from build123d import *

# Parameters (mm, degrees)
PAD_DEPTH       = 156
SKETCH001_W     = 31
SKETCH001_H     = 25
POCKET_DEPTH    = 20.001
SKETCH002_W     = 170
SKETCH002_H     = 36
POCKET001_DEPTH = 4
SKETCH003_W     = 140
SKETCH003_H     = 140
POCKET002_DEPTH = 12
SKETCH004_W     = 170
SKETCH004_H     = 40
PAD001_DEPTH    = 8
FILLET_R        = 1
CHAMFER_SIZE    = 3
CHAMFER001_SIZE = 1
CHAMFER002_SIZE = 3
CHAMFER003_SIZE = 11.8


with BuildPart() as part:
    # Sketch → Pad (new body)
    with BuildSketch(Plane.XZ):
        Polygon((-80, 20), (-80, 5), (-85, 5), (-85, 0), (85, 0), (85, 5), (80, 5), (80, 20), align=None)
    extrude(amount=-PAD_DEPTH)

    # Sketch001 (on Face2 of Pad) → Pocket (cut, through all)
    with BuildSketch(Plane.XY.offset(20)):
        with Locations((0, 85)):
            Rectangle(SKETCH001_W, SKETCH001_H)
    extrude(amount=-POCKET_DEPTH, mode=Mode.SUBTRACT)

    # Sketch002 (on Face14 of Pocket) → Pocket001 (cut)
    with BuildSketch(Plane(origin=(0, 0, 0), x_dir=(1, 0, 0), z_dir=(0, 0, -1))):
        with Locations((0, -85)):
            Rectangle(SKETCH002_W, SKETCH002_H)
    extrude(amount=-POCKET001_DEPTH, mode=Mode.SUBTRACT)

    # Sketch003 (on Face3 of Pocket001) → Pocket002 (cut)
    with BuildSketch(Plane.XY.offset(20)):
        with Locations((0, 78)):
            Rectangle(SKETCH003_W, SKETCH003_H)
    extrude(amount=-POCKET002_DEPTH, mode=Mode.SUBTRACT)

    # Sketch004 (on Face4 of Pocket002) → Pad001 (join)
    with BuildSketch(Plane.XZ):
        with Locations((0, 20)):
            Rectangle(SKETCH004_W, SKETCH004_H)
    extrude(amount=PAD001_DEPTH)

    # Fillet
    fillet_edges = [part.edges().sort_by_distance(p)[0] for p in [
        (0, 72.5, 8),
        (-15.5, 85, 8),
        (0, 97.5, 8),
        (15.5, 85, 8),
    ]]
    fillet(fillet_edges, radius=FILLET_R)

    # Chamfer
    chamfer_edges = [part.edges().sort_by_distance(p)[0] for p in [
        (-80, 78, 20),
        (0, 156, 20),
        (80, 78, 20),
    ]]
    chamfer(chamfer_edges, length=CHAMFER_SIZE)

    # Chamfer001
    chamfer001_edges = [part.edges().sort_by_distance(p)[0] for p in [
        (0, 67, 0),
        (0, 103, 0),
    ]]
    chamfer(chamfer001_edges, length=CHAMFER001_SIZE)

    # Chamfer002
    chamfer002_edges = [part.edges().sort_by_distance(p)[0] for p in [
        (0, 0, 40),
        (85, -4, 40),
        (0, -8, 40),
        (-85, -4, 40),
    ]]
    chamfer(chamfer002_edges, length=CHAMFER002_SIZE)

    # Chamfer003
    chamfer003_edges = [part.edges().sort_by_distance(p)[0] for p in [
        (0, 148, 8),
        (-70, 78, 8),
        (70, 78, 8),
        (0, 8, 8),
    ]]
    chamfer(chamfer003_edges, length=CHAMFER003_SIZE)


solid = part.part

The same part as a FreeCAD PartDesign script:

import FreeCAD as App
import Part
import Sketcher
from FreeCAD import Vector


def edges_at(feature, points):
    """Names of the edges that pass closest to the given points."""
    edges = feature.Shape.Edges
    near = lambda p: min(range(len(edges)), key=lambda i: edges[i].distToShape(Part.Vertex(*p))[0])
    return sorted({f"Edge{near(p) + 1}" for p in points})

doc = App.newDocument("Part")
body = doc.addObject("PartDesign::Body", "Body")

# Sketch on XZ plane
sketch1 = body.newObject("Sketcher::SketchObject", "Sketch")
sketch1.AttachmentSupport = (doc.getObject("XZ_Plane"), [""])
sketch1.MapMode = "FlatFace"
sketch1.addGeometry([
    Part.LineSegment(Vector(-80, 20, 0), Vector(-80, 5, 0)),  # 0
    Part.LineSegment(Vector(-80, 5, 0), Vector(-85, 5, 0)),  # 1
    Part.LineSegment(Vector(-85, 5, 0), Vector(-85, 0, 0)),  # 2
    Part.LineSegment(Vector(-85, 0, 0), Vector(85, 0, 0)),  # 3
    Part.LineSegment(Vector(85, 0, 0), Vector(85, 5, 0)),  # 4
    Part.LineSegment(Vector(85, 5, 0), Vector(80, 5, 0)),  # 5
    Part.LineSegment(Vector(80, 5, 0), Vector(80, 20, 0)),  # 6
    Part.LineSegment(Vector(80, 20, 0), Vector(-80, 20, 0)),  # 7
], False)
sketch1.addConstraint([
    Sketcher.Constraint("Coincident", 0, 2, 1, 1),
    Sketcher.Constraint("Coincident", 1, 2, 2, 1),
    Sketcher.Constraint("Coincident", 2, 2, 3, 1),
    Sketcher.Constraint("Coincident", 3, 2, 4, 1),
    Sketcher.Constraint("Coincident", 4, 2, 5, 1),
    Sketcher.Constraint("Coincident", 5, 2, 6, 1),
    Sketcher.Constraint("Coincident", 6, 2, 7, 1),
    Sketcher.Constraint("Coincident", 7, 2, 0, 1),
    Sketcher.Constraint("Vertical", 0),
    Sketcher.Constraint("Horizontal", 1),
    Sketcher.Constraint("Vertical", 2),
    Sketcher.Constraint("Horizontal", 3),
    Sketcher.Constraint("Vertical", 4),
    Sketcher.Constraint("Horizontal", 5),
    Sketcher.Constraint("Vertical", 6),
    Sketcher.Constraint("Horizontal", 7),
    Sketcher.Constraint("Symmetric", 2, 2, 3, 2, -1, 1),
    Sketcher.Constraint("Symmetric", 0, 2, 5, 2, -2),
    Sketcher.Constraint("Equal", 5, 2),
    Sketcher.Constraint("DistanceX", 1, 2, 1, 1, 5.0),
    Sketcher.Constraint("DistanceX", 3, 1, 3, 2, 170.0),
    Sketcher.Constraint("DistanceY", 0, 2, 0, 1, 15.0),
])
pad1 = body.newObject("PartDesign::Pad", "Pad")
pad1.Profile = sketch1
pad1.Length = 156
pad1.Reversed = True

# Sketch on XY plane
sketch2 = body.newObject("Sketcher::SketchObject", "Sketch001")
sketch2.AttachmentSupport = (doc.getObject("XY_Plane"), [""])
sketch2.MapMode = "FlatFace"
sketch2.AttachmentOffset = App.Placement(Vector(0, 0, 20), App.Rotation())
sketch2.addGeometry([
    Part.LineSegment(Vector(-15.5, 97.5, 0), Vector(-15.5, 72.5, 0)),
    Part.LineSegment(Vector(-15.5, 72.5, 0), Vector(15.5, 72.5, 0)),
    Part.LineSegment(Vector(15.5, 72.5, 0), Vector(15.5, 97.5, 0)),
    Part.LineSegment(Vector(15.5, 97.5, 0), Vector(-15.5, 97.5, 0)),
], False)
sketch2.addConstraint([
    Sketcher.Constraint("Coincident", 0, 2, 1, 1),
    Sketcher.Constraint("Coincident", 1, 2, 2, 1),
    Sketcher.Constraint("Coincident", 2, 2, 3, 1),
    Sketcher.Constraint("Coincident", 3, 2, 0, 1),
    Sketcher.Constraint("Vertical", 0),
    Sketcher.Constraint("Horizontal", 1),
    Sketcher.Constraint("Vertical", 2),
    Sketcher.Constraint("Horizontal", 3),
    Sketcher.Constraint("DistanceX", 1, 1, 1, 2, 31.0),
    Sketcher.Constraint("DistanceY", 0, 2, 0, 1, 25.0),
    Sketcher.Constraint("DistanceX", 0, 2, -1, 1, 15.5),
    Sketcher.Constraint("DistanceY", -1, 1, 0, 2, 72.5),
])
pocket1 = body.newObject("PartDesign::Pocket", "Pocket")
pocket1.Profile = sketch2
pocket1.Type = "ThroughAll"

# Sketch on XY plane
sketch3 = body.newObject("Sketcher::SketchObject", "Sketch002")
sketch3.AttachmentSupport = (doc.getObject("XY_Plane"), [""])
sketch3.MapMode = "FlatFace"
sketch3.addGeometry([
    Part.LineSegment(Vector(-85, 67, 0), Vector(-85, 103, 0)),
    Part.LineSegment(Vector(-85, 103, 0), Vector(85, 103, 0)),
    Part.LineSegment(Vector(85, 103, 0), Vector(85, 67, 0)),
    Part.LineSegment(Vector(85, 67, 0), Vector(-85, 67, 0)),
], False)
sketch3.addConstraint([
    Sketcher.Constraint("Coincident", 0, 2, 1, 1),
    Sketcher.Constraint("Coincident", 1, 2, 2, 1),
    Sketcher.Constraint("Coincident", 2, 2, 3, 1),
    Sketcher.Constraint("Coincident", 3, 2, 0, 1),
    Sketcher.Constraint("Vertical", 0),
    Sketcher.Constraint("Horizontal", 1),
    Sketcher.Constraint("Vertical", 2),
    Sketcher.Constraint("Horizontal", 3),
    Sketcher.Constraint("DistanceX", 1, 1, 1, 2, 170.0),
    Sketcher.Constraint("DistanceY", 0, 1, 0, 2, 36.0),
    Sketcher.Constraint("DistanceX", 0, 2, -1, 1, 85.0),
    Sketcher.Constraint("DistanceY", -1, 1, 0, 2, 103.0),
])
pocket2 = body.newObject("PartDesign::Pocket", "Pocket001")
pocket2.Profile = sketch3
pocket2.Length = 4
pocket2.Reversed = True

# Sketch on XY plane
sketch4 = body.newObject("Sketcher::SketchObject", "Sketch003")
sketch4.AttachmentSupport = (doc.getObject("XY_Plane"), [""])
sketch4.MapMode = "FlatFace"
sketch4.AttachmentOffset = App.Placement(Vector(0, 0, 20), App.Rotation())
sketch4.addGeometry([
    Part.LineSegment(Vector(-70, 148, 0), Vector(-70, 8, 0)),
    Part.LineSegment(Vector(-70, 8, 0), Vector(70, 8, 0)),
    Part.LineSegment(Vector(70, 8, 0), Vector(70, 148, 0)),
    Part.LineSegment(Vector(70, 148, 0), Vector(-70, 148, 0)),
], False)
sketch4.addConstraint([
    Sketcher.Constraint("Coincident", 0, 2, 1, 1),
    Sketcher.Constraint("Coincident", 1, 2, 2, 1),
    Sketcher.Constraint("Coincident", 2, 2, 3, 1),
    Sketcher.Constraint("Coincident", 3, 2, 0, 1),
    Sketcher.Constraint("Vertical", 0),
    Sketcher.Constraint("Horizontal", 1),
    Sketcher.Constraint("Vertical", 2),
    Sketcher.Constraint("Horizontal", 3),
    Sketcher.Constraint("Equal", 3, 0),
    Sketcher.Constraint("DistanceX", 1, 1, 1, 2, 140.0),
    Sketcher.Constraint("DistanceX", 0, 2, -1, 1, 70.0),
    Sketcher.Constraint("DistanceY", -1, 1, 0, 2, 8.0),
])
pocket3 = body.newObject("PartDesign::Pocket", "Pocket002")
pocket3.Profile = sketch4
pocket3.Length = 12

# Sketch on XZ plane
sketch5 = body.newObject("Sketcher::SketchObject", "Sketch004")
sketch5.AttachmentSupport = (doc.getObject("XZ_Plane"), [""])
sketch5.MapMode = "FlatFace"
sketch5.addGeometry([
    Part.LineSegment(Vector(-85, 40, 0), Vector(-85, 0, 0)),
    Part.LineSegment(Vector(-85, 0, 0), Vector(85, 0, 0)),
    Part.LineSegment(Vector(85, 0, 0), Vector(85, 40, 0)),
    Part.LineSegment(Vector(85, 40, 0), Vector(-85, 40, 0)),
], False)
sketch5.addConstraint([
    Sketcher.Constraint("Coincident", 0, 2, 1, 1),
    Sketcher.Constraint("Coincident", 1, 2, 2, 1),
    Sketcher.Constraint("Coincident", 2, 2, 3, 1),
    Sketcher.Constraint("Coincident", 3, 2, 0, 1),
    Sketcher.Constraint("Vertical", 0),
    Sketcher.Constraint("Horizontal", 1),
    Sketcher.Constraint("Vertical", 2),
    Sketcher.Constraint("Horizontal", 3),
    Sketcher.Constraint("Symmetric", 0, 2, 1, 2, -1, 1),
    Sketcher.Constraint("DistanceX", 1, 1, 1, 2, 170.0),
    Sketcher.Constraint("DistanceY", 0, 2, 0, 1, 40.0),
])
pad2 = body.newObject("PartDesign::Pad", "Pad001")
pad2.Profile = sketch5
pad2.Length = 8
doc.recompute()

fillet = body.newObject("PartDesign::Fillet", "Fillet")
fillet.Base = (pad2, edges_at(pad2, [
    (0, 72.5, 8),
    (-15.5, 85, 8),
    (0, 97.5, 8),
    (15.5, 85, 8),
]))
fillet.Radius = 1
doc.recompute()

chamfer = body.newObject("PartDesign::Chamfer", "Chamfer")
chamfer.Base = (fillet, edges_at(fillet, [(-80, 78, 20), (0, 156, 20), (80, 78, 20)]))
chamfer.Size = 3
doc.recompute()

chamfer2 = body.newObject("PartDesign::Chamfer", "Chamfer001")
chamfer2.Base = (chamfer, edges_at(chamfer, [(0, 67, 0), (0, 103, 0)]))
chamfer2.Size = 1
doc.recompute()

chamfer3 = body.newObject("PartDesign::Chamfer", "Chamfer002")
chamfer3.Base = (chamfer2, edges_at(chamfer2, [
    (0, 0, 40),
    (85, -4, 40),
    (0, -8, 40),
    (-85, -4, 40),
]))
chamfer3.Size = 3
doc.recompute()

chamfer4 = body.newObject("PartDesign::Chamfer", "Chamfer003")
chamfer4.Base = (chamfer3, edges_at(chamfer3, [
    (0, 148, 8),
    (-70, 78, 8),
    (70, 78, 8),
    (0, 8, 8),
]))
chamfer4.Size = 11.8

doc.recompute()
